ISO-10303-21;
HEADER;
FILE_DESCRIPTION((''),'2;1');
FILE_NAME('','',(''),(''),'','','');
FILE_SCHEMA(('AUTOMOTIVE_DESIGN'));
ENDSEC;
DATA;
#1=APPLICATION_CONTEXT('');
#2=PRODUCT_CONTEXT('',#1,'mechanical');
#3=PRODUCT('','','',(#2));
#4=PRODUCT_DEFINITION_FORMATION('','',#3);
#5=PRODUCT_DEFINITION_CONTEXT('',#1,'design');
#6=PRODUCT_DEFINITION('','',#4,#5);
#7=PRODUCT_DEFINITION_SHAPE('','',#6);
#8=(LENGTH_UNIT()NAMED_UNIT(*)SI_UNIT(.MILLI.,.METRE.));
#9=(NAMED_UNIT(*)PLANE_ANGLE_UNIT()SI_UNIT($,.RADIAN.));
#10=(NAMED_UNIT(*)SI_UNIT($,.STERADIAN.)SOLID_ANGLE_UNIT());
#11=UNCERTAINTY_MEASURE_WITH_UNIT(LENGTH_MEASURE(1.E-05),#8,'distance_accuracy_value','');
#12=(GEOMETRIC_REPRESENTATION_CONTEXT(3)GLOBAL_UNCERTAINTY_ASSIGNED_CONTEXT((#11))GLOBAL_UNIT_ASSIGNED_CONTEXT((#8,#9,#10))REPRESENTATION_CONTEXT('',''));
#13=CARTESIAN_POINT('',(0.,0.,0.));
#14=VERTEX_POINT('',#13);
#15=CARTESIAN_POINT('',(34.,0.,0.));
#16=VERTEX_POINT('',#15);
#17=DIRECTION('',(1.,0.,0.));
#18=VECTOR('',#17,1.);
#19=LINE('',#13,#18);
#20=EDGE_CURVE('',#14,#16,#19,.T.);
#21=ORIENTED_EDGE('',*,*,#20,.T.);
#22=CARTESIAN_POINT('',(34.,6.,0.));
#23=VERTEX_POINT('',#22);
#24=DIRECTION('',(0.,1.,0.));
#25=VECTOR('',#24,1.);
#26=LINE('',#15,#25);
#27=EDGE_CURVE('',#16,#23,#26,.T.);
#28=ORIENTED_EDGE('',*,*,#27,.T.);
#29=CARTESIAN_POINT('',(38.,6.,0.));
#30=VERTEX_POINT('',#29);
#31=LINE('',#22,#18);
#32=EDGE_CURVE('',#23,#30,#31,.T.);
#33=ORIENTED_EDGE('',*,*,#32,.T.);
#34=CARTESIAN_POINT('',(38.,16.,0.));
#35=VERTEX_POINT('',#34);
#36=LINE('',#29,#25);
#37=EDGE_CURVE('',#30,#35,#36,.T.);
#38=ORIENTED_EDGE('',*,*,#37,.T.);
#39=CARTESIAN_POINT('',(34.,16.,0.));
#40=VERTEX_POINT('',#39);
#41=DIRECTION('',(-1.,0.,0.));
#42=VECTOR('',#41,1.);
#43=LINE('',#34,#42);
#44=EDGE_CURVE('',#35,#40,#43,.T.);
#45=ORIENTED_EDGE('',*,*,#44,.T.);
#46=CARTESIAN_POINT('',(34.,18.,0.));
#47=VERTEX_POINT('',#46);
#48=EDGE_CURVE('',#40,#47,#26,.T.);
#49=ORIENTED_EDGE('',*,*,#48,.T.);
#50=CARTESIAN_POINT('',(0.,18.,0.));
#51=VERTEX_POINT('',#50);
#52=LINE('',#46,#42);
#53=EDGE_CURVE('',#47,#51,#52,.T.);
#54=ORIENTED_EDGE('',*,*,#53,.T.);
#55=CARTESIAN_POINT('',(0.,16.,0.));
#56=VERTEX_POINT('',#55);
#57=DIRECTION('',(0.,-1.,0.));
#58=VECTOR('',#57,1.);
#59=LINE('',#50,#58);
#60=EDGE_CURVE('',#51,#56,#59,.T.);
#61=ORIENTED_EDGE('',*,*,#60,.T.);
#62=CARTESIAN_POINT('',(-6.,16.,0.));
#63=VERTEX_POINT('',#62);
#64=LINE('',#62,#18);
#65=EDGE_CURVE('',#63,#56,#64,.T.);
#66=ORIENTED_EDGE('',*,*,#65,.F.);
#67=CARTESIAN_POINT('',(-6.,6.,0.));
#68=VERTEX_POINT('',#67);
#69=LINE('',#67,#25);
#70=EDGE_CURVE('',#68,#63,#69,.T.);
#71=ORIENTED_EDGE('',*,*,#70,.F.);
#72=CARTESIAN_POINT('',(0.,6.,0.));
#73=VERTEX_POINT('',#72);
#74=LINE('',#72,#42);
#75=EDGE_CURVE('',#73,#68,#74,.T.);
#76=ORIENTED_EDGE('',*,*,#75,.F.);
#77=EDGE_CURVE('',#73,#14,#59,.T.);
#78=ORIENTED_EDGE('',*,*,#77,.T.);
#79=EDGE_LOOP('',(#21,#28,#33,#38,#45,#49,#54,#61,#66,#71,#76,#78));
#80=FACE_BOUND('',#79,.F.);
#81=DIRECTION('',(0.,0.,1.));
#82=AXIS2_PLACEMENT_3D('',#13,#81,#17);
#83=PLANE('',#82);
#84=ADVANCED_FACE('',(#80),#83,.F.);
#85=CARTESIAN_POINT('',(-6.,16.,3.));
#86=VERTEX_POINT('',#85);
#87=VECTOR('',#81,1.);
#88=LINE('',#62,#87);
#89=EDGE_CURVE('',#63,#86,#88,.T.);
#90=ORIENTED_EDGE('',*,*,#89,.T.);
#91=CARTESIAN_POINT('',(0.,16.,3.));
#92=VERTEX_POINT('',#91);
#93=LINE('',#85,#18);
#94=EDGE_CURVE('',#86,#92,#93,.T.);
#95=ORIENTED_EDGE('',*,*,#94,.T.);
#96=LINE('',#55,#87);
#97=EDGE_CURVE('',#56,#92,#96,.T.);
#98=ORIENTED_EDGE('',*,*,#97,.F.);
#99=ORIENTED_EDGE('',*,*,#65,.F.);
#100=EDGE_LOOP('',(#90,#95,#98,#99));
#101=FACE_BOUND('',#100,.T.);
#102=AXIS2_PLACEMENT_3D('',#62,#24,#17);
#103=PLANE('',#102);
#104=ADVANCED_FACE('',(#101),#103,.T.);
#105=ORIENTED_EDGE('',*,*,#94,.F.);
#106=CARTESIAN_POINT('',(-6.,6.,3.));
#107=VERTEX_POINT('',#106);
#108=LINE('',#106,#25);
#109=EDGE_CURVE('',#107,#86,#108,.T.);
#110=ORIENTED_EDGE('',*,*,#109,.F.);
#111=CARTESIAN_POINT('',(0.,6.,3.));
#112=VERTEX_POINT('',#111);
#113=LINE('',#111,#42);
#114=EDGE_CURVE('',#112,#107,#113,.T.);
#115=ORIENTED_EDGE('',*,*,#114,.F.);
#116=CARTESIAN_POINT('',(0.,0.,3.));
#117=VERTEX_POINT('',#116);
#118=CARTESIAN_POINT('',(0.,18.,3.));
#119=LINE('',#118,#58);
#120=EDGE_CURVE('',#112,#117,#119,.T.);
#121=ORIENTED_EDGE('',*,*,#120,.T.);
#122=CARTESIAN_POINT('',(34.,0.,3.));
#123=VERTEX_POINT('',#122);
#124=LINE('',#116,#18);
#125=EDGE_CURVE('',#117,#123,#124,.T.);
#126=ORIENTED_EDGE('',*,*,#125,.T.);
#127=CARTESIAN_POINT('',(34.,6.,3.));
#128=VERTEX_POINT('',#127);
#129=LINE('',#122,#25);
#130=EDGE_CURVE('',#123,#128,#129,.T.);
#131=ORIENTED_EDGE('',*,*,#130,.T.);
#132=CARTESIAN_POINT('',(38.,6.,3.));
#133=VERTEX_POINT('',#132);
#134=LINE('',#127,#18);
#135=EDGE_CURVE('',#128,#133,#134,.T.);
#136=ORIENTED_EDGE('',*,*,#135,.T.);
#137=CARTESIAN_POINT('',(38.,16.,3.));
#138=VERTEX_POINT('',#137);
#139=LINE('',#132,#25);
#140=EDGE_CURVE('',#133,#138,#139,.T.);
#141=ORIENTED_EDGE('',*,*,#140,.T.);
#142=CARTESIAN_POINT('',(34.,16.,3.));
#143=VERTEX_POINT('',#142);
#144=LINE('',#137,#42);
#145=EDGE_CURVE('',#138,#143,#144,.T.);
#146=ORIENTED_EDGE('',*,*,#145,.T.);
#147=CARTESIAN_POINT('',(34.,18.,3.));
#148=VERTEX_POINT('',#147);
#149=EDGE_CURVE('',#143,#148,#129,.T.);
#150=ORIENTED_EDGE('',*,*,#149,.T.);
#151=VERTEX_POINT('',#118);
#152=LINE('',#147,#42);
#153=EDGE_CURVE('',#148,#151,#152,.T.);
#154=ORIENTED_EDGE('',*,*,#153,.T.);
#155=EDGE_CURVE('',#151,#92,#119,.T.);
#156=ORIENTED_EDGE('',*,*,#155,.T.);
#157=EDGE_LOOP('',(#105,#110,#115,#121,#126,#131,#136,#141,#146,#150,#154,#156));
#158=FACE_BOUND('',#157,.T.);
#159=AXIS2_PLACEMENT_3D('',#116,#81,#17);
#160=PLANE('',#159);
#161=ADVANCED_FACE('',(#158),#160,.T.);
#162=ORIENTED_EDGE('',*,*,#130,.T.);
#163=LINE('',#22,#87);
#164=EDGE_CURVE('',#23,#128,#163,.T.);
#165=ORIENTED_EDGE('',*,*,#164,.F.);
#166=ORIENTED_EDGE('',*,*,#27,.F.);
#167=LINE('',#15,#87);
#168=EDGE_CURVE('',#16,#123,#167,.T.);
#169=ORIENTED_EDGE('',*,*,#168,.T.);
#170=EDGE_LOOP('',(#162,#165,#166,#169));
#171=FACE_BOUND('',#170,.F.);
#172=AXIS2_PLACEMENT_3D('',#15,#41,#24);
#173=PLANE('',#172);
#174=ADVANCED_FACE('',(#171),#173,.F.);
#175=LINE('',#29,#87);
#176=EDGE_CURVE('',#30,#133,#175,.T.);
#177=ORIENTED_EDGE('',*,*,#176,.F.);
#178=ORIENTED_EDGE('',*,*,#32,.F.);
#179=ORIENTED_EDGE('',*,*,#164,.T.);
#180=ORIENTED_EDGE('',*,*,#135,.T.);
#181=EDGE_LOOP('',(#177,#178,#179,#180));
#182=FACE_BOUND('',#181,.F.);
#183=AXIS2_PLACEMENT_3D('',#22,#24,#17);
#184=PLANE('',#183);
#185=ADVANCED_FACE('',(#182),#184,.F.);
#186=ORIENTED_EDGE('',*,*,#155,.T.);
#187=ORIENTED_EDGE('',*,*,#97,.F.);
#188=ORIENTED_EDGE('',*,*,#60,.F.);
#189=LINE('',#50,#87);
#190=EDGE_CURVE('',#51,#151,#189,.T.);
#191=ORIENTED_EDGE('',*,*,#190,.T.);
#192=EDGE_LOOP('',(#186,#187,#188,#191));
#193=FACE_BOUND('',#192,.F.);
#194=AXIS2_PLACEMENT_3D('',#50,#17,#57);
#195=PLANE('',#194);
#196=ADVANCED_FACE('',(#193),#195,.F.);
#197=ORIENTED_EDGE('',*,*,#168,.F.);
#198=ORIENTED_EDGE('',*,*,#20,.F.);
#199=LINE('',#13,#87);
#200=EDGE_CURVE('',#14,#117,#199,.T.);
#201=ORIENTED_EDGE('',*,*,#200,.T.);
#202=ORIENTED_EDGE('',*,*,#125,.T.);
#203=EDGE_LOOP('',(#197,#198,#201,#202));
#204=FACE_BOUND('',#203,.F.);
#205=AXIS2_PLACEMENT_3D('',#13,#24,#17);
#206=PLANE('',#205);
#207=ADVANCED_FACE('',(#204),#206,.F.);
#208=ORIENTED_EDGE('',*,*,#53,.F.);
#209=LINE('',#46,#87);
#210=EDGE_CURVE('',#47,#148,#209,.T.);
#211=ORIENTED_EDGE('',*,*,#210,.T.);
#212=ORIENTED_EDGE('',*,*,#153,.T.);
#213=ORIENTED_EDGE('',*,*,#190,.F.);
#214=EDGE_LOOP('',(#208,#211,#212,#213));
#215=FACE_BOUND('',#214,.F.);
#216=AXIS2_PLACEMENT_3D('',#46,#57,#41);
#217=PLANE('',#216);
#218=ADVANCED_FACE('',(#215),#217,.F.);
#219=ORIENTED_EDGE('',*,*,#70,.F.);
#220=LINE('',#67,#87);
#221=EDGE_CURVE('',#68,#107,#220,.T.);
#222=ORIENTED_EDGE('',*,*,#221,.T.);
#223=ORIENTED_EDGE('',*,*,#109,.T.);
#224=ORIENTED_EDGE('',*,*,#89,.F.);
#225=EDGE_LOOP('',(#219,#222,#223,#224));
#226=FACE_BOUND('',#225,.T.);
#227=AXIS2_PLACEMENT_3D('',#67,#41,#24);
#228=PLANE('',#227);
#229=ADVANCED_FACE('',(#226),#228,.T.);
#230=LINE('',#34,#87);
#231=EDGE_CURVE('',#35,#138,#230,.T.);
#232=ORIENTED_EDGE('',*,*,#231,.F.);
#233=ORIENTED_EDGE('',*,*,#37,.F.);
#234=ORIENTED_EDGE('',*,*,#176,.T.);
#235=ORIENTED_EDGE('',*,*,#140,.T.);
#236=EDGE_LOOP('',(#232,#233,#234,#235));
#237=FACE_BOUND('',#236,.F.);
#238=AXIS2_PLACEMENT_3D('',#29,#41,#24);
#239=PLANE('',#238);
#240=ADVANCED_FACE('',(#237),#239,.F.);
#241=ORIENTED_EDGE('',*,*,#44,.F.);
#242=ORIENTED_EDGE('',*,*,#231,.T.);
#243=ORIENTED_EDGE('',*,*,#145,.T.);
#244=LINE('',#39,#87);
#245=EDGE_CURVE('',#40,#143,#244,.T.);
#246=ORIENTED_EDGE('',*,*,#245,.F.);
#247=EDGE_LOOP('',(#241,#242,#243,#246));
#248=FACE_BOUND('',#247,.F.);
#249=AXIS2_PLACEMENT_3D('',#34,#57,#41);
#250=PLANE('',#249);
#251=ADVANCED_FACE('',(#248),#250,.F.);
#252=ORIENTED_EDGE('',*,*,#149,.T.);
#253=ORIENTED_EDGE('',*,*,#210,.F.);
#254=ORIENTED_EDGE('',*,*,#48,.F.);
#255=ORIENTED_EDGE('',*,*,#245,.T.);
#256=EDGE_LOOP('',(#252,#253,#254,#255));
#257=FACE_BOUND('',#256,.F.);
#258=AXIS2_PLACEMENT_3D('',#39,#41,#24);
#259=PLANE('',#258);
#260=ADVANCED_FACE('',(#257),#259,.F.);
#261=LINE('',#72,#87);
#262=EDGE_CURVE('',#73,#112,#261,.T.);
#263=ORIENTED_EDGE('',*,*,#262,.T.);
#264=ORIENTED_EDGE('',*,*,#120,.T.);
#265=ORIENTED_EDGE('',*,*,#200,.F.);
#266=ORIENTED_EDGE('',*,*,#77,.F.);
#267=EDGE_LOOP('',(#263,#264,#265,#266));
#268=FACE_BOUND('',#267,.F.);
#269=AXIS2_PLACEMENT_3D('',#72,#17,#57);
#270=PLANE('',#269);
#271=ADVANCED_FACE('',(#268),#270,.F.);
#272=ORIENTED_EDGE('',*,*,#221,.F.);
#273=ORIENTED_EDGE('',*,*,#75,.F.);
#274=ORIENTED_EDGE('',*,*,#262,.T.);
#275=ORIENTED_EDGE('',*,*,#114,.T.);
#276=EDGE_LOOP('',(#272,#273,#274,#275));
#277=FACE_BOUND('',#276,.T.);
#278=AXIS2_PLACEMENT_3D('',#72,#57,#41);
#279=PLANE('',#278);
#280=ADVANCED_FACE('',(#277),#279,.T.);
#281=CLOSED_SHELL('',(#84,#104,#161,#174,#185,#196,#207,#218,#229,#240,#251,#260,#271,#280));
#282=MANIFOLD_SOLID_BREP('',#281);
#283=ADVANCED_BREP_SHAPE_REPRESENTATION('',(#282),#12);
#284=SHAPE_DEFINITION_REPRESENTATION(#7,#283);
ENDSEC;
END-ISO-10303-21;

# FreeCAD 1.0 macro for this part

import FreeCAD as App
import Part
import Sketcher

V = App.Vector
Q = App.Units.Quantity

doc = App.newDocument("Part")
body = doc.addObject("PartDesign::Body", "Body")

# Sketch on XY plane
sketch1 = body.newObject("Sketcher::SketchObject", "Sketch")
sketch1.AttachmentSupport = (doc.getObject("XY_Plane"), [""])
sketch1.MapMode = "FlatFace"
sketch1.addGeometry([
    Part.LineSegment(V(0, 6, 0), V(0, 0, 0)),  # 0
    Part.LineSegment(V(0, 0, 0), V(34, 0, 0)),  # 1
    Part.LineSegment(V(34, 0, 0), V(34, 6, 0)),  # 2
    Part.LineSegment(V(34, 6, 0), V(38, 6, 0)),  # 3
    Part.LineSegment(V(38, 6, 0), V(38, 16, 0)),  # 4
    Part.LineSegment(V(38, 16, 0), V(34, 16, 0)),  # 5
    Part.LineSegment(V(34, 16, 0), V(34, 18, 0)),  # 6
    Part.LineSegment(V(34, 18, 0), V(0, 18, 0)),  # 7
    Part.LineSegment(V(0, 18, 0), V(0, 16, 0)),  # 8
    Part.LineSegment(V(0, 16, 0), V(-6, 16, 0)),  # 9
    Part.LineSegment(V(-6, 16, 0), V(-6, 6, 0)),  # 10
    Part.LineSegment(V(-6, 6, 0), V(0, 6, 0)),  # 11
], False)
sketch1.addConstraint([
    Sketcher.Constraint("Coincident", 0, 2, 1, 1),
    Sketcher.Constraint("Coincident", 1, 2, 2, 1),
    Sketcher.Constraint("Coincident", 2, 2, 3, 1),
    Sketcher.Constraint("Coincident", 3, 2, 4, 1),
    Sketcher.Constraint("Coincident", 4, 2, 5, 1),
    Sketcher.Constraint("Coincident", 5, 2, 6, 1),
    Sketcher.Constraint("Coincident", 6, 2, 7, 1),
    Sketcher.Constraint("Coincident", 7, 2, 8, 1),
    Sketcher.Constraint("Coincident", 8, 2, 9, 1),
    Sketcher.Constraint("Coincident", 9, 2, 10, 1),
    Sketcher.Constraint("Coincident", 10, 2, 11, 1),
    Sketcher.Constraint("Coincident", 11, 2, 0, 1),
    Sketcher.Constraint("Vertical", 0),
    Sketcher.Constraint("Horizontal", 1),
    Sketcher.Constraint("Vertical", 2),
    Sketcher.Constraint("Horizontal", 3),
    Sketcher.Constraint("Vertical", 4),
    Sketcher.Constraint("Horizontal", 5),
    Sketcher.Constraint("Vertical", 6),
    Sketcher.Constraint("Horizontal", 7),
    Sketcher.Constraint("Vertical", 8),
    Sketcher.Constraint("Horizontal", 9),
    Sketcher.Constraint("Vertical", 10),
    Sketcher.Constraint("Horizontal", 11),
    Sketcher.Constraint("Coincident", 0, 2, -1, 1),
    Sketcher.Constraint("PointOnObject", 7, 2, -2),
    Sketcher.Constraint("Horizontal", 5, 2, 8, 2),
    Sketcher.Constraint("Horizontal", 3, 2, 10, 2),
    Sketcher.Constraint("Vertical", 2, 2, 5, 2),
    Sketcher.Constraint("Equal", 11, 0),
    Sketcher.Constraint("DistanceX", 1, 1, 1, 2, Q("34 mm")),
    Sketcher.Constraint("DistanceX", 3, 1, 3, 2, Q("4 mm")),
    Sketcher.Constraint("DistanceX", 9, 2, 9, 1, Q("6 mm")),
    Sketcher.Constraint("DistanceY", 4, 1, 4, 2, Q("10 mm")),
    Sketcher.Constraint("DistanceY", 6, 1, 6, 2, Q("2 mm")),
])
pad1 = body.newObject("PartDesign::Pad", "Pad")
pad1.Profile = sketch1
pad1.Length = 3

doc.recompute()
